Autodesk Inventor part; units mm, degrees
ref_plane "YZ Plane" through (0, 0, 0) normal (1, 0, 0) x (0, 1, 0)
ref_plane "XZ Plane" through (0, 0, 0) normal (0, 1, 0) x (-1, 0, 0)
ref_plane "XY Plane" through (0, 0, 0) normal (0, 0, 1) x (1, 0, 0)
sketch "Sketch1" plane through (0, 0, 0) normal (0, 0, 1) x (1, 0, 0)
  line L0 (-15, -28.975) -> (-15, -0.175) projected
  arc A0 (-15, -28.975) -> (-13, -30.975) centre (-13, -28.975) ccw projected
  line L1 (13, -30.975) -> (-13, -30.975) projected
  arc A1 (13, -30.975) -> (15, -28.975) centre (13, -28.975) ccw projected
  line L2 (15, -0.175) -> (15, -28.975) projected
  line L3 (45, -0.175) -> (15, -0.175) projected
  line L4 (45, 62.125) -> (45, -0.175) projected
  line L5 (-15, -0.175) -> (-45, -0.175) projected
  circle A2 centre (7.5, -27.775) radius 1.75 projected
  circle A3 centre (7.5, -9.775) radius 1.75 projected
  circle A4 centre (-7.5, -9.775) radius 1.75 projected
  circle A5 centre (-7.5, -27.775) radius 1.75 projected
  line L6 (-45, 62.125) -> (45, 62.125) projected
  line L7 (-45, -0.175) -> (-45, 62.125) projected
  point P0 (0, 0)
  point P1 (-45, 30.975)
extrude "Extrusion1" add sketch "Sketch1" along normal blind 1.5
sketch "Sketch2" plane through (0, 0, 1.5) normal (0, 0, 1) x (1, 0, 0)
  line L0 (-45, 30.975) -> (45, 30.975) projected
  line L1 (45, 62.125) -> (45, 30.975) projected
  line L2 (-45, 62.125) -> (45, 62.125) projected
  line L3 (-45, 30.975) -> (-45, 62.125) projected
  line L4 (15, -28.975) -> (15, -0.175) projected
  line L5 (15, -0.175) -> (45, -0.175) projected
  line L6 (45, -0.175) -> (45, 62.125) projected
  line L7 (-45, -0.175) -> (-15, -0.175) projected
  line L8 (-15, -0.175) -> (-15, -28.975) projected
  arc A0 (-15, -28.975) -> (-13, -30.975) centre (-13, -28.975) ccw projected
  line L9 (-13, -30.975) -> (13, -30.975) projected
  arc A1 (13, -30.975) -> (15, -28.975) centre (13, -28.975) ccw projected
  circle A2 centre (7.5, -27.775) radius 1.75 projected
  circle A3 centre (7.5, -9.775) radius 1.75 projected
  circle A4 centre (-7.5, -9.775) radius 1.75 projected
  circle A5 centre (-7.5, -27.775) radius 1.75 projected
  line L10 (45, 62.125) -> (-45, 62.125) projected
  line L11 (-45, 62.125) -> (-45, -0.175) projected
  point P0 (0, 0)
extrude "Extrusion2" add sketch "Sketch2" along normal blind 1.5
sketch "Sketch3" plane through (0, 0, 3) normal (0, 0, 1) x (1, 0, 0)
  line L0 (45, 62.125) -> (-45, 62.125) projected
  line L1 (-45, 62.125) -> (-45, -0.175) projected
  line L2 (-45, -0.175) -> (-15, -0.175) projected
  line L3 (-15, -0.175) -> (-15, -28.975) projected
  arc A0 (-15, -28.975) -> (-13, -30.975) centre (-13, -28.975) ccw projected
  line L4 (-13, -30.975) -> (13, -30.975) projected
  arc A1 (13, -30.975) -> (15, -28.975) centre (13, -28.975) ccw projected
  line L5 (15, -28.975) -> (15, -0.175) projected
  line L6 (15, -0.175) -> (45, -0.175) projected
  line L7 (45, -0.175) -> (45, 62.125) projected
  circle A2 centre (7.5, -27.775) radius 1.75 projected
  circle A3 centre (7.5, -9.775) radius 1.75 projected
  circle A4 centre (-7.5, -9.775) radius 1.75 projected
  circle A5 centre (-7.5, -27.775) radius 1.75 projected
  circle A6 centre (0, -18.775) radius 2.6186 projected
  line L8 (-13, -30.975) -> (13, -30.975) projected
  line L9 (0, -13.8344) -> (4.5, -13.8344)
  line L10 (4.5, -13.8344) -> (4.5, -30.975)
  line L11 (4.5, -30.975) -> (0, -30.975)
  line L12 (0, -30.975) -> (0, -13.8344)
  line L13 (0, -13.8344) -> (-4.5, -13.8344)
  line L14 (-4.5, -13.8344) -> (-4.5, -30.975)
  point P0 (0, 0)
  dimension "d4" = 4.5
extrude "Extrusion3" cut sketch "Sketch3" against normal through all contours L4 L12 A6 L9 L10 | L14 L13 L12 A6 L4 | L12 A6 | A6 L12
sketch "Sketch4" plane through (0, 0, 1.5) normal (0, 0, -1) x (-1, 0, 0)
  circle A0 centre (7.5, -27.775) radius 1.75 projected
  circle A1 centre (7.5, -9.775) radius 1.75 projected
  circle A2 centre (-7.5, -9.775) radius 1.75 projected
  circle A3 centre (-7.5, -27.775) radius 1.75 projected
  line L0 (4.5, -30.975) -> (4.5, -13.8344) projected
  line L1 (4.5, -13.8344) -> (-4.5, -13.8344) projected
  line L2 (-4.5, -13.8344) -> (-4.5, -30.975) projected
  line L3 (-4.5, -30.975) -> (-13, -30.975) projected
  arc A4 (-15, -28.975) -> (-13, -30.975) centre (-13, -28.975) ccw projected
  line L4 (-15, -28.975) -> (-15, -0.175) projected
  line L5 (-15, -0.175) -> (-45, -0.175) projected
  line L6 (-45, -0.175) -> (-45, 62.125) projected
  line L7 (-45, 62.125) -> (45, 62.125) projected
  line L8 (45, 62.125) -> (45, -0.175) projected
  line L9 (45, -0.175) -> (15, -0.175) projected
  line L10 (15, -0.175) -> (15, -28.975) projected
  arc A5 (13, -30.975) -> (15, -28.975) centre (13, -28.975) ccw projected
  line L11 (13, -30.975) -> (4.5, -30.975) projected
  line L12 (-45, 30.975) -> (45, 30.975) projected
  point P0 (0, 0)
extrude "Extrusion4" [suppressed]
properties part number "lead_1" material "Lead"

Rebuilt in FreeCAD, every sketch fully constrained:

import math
import FreeCAD as App
import Part
import Sketcher


def add_polygon(sketch, points):
    """Adds a closed chain of lines whose ends are joined by coincident constraints."""
    first, n = sketch.GeometryCount, len(points)
    for a, b in zip(points, points[1:] + points[:1]):
        sketch.addGeometry(Part.LineSegment(App.Vector(*a, 0), App.Vector(*b, 0)), False)
    for i in range(n):
        sketch.addConstraint(Sketcher.Constraint("Coincident", first + i, 2, first + (i + 1) % n, 1))

doc = App.newDocument("Part")
body = doc.addObject("PartDesign::Body", "Body")

# Sketch on XY plane
sketch1 = body.newObject("Sketcher::SketchObject", "Sketch")
sketch1.AttachmentSupport = (doc.getObject("XY_Plane"), [""])
sketch1.MapMode = "FlatFace"
sketch1.addGeometry([
    Part.LineSegment(App.Vector(-15, -0.2, 0), App.Vector(-15, -29, 0)),  # 0
    Part.ArcOfCircle(Part.Circle(App.Vector(-13, -29, 0), App.Vector(0, 0, 1), 2), math.radians(180), math.radians(270)),  # 1
    Part.LineSegment(App.Vector(-13, -31, 0), App.Vector(13, -31, 0)),  # 2
    Part.ArcOfCircle(Part.Circle(App.Vector(13, -29, 0), App.Vector(0, 0, 1), 2), math.radians(-90), math.radians(0)),  # 3
    Part.LineSegment(App.Vector(15, -29, 0), App.Vector(15, -0.2, 0)),  # 4
    Part.LineSegment(App.Vector(15, -0.2, 0), App.Vector(45, -0.2, 0)),  # 5
    Part.LineSegment(App.Vector(45, -0.2, 0), App.Vector(45, 62.1, 0)),  # 6
    Part.LineSegment(App.Vector(45, 62.1, 0), App.Vector(-45, 62.1, 0)),  # 7
    Part.LineSegment(App.Vector(-45, 62.1, 0), App.Vector(-45, -0.2, 0)),  # 8
    Part.LineSegment(App.Vector(-45, -0.2, 0), App.Vector(-15, -0.2, 0)),  # 9
    Part.Circle(App.Vector(-7.5, -27.8, 0), App.Vector(0, 0, 1), 1.8),  # 10
    Part.Circle(App.Vector(-7.5, -9.8, 0), App.Vector(0, 0, 1), 1.8),  # 11
    Part.Circle(App.Vector(7.5, -27.8, 0), App.Vector(0, 0, 1), 1.8),  # 12
    Part.Circle(App.Vector(7.5, -9.8, 0), App.Vector(0, 0, 1), 1.8),  # 13
], False)
sketch1.addConstraint([
    Sketcher.Constraint("Tangent", 0, 2, 1, 1),
    Sketcher.Constraint("Tangent", 1, 2, 2, 1),
    Sketcher.Constraint("Tangent", 2, 2, 3, 1),
    Sketcher.Constraint("Tangent", 3, 2, 4, 1),
    Sketcher.Constraint("Coincident", 4, 2, 5, 1),
    Sketcher.Constraint("Coincident", 5, 2, 6, 1),
    Sketcher.Constraint("Coincident", 6, 2, 7, 1),
    Sketcher.Constraint("Coincident", 7, 2, 8, 1),
    Sketcher.Constraint("Coincident", 8, 2, 9, 1),
    Sketcher.Constraint("Coincident", 9, 2, 0, 1),
    Sketcher.Constraint("Vertical", 0),
    Sketcher.Constraint("Horizontal", 2),
    Sketcher.Constraint("Vertical", 4),
    Sketcher.Constraint("Horizontal", 5),
    Sketcher.Constraint("Vertical", 6),
    Sketcher.Constraint("Horizontal", 7),
    Sketcher.Constraint("Vertical", 8),
    Sketcher.Constraint("Horizontal", 9),
    Sketcher.Constraint("Equal", 1, 3),
    Sketcher.Constraint("Equal", 10, 11),
    Sketcher.Constraint("Equal", 11, 12),
    Sketcher.Constraint("Equal", 12, 13),
    Sketcher.Constraint("Symmetric", 10, 3, 12, 3, -2),
    Sketcher.Constraint("Symmetric", 11, 3, 13, 3, -2),
    Sketcher.Constraint("Symmetric", 5, 2, 8, 2, -2),
    Sketcher.Constraint("Vertical", 10, 3, 11, 3),
    Sketcher.Constraint("Equal", 5, 9),
    Sketcher.Constraint("Radius", 1, 2.0),
    Sketcher.Constraint("Diameter", 10, 3.5),
    Sketcher.Constraint("DistanceX", 2, 1, 2, 2, 26.0),
    Sketcher.Constraint("DistanceX", 5, 1, 5, 2, 30.0),
    Sketcher.Constraint("DistanceY", 0, 2, 0, 1, 28.8),
    Sketcher.Constraint("DistanceY", 6, 1, 6, 2, 62.3),
    Sketcher.Constraint("DistanceY", 10, 3, 11, 3, 18.0),
    Sketcher.Constraint("DistanceX", 10, 3, 12, 3, 15.0),
    Sketcher.Constraint("DistanceY", 1, 3, 10, 3, 1.2),
    Sketcher.Constraint("DistanceY", 1, 3, -1, 1, 28.975),
])
pad1 = body.newObject("PartDesign::Pad", "Pad")
pad1.Profile = sketch1
pad1.Length = 1.5

# Sketch on XY plane
sketch2 = body.newObject("Sketcher::SketchObject", "Sketch001")
sketch2.AttachmentSupport = (doc.getObject("XY_Plane"), [""])
sketch2.MapMode = "FlatFace"
sketch2.AttachmentOffset = App.Placement(App.Vector(0, 0, 1.5), App.Rotation())
sketch2.addGeometry([
    Part.LineSegment(App.Vector(-45, 62.1, 0), App.Vector(-45, -0.2, 0)),  # 0
    Part.LineSegment(App.Vector(-45, -0.2, 0), App.Vector(-15, -0.2, 0)),  # 1
    Part.LineSegment(App.Vector(-15, -0.2, 0), App.Vector(-15, -29, 0)),  # 2
    Part.ArcOfCircle(Part.Circle(App.Vector(-13, -29, 0), App.Vector(0, 0, 1), 2), math.radians(180), math.radians(270)),  # 3
    Part.LineSegment(App.Vector(-13, -31, 0), App.Vector(13, -31, 0)),  # 4
    Part.ArcOfCircle(Part.Circle(App.Vector(13, -29, 0), App.Vector(0, 0, 1), 2), math.radians(-90), math.radians(0)),  # 5
    Part.LineSegment(App.Vector(15, -29, 0), App.Vector(15, -0.2, 0)),  # 6
    Part.LineSegment(App.Vector(15, -0.2, 0), App.Vector(45, -0.2, 0)),  # 7
    Part.LineSegment(App.Vector(45, -0.2, 0), App.Vector(45, 62.1, 0)),  # 8
    Part.LineSegment(App.Vector(45, 62.1, 0), App.Vector(-45, 62.1, 0)),  # 9
    Part.Circle(App.Vector(7.5, -9.8, 0), App.Vector(0, 0, 1), 1.8),  # 10
    Part.Circle(App.Vector(-7.5, -27.8, 0), App.Vector(0, 0, 1), 1.8),  # 11
    Part.Circle(App.Vector(-7.5, -9.8, 0), App.Vector(0, 0, 1), 1.8),  # 12
    Part.Circle(App.Vector(7.5, -27.8, 0), App.Vector(0, 0, 1), 1.8),  # 13
], False)
sketch2.addConstraint([
    Sketcher.Constraint("Coincident", 0, 2, 1, 1),
    Sketcher.Constraint("Coincident", 1, 2, 2, 1),
    Sketcher.Constraint("Tangent", 2, 2, 3, 1),
    Sketcher.Constraint("Tangent", 3, 2, 4, 1),
    Sketcher.Constraint("Tangent", 4, 2, 5, 1),
    Sketcher.Constraint("Tangent", 5, 2, 6, 1),
    Sketcher.Constraint("Coincident", 6, 2, 7, 1),
    Sketcher.Constraint("Coincident", 7, 2, 8, 1),
    Sketcher.Constraint("Coincident", 8, 2, 9, 1),
    Sketcher.Constraint("Coincident", 9, 2, 0, 1),
    Sketcher.Constraint("Vertical", 0),
    Sketcher.Constraint("Horizontal", 1),
    Sketcher.Constraint("Vertical", 2),
    Sketcher.Constraint("Horizontal", 4),
    Sketcher.Constraint("Vertical", 6),
    Sketcher.Constraint("Horizontal", 7),
    Sketcher.Constraint("Vertical", 8),
    Sketcher.Constraint("Horizontal", 9),
    Sketcher.Constraint("Equal", 3, 5),
    Sketcher.Constraint("Equal", 10, 11),
    Sketcher.Constraint("Equal", 11, 12),
    Sketcher.Constraint("Equal", 12, 13),
    Sketcher.Constraint("Symmetric", 10, 3, 12, 3, -2),
    Sketcher.Constraint("Symmetric", 11, 3, 13, 3, -2),
    Sketcher.Constraint("Symmetric", 1, 2, 6, 2, -2),
    Sketcher.Constraint("Vertical", 11, 3, 12, 3),
    Sketcher.Constraint("Equal", 1, 7),
    Sketcher.Constraint("Radius", 3, 2.0),
    Sketcher.Constraint("Diameter", 10, 3.5),
    Sketcher.Constraint("DistanceX", 1, 1, 1, 2, 30.0),
    Sketcher.Constraint("DistanceX", 4, 1, 4, 2, 26.0),
    Sketcher.Constraint("DistanceY", 0, 2, 0, 1, 62.3),
    Sketcher.Constraint("DistanceY", 2, 2, 2, 1, 28.8),
    Sketcher.Constraint("DistanceX", 11, 3, 10, 3, 15.0),
    Sketcher.Constraint("DistanceY", 11, 3, 10, 3, 18.0),
    Sketcher.Constraint("DistanceY", 5, 3, 10, 3, 19.2),
    Sketcher.Constraint("DistanceY", 3, 3, -1, 1, 28.975),
])
pad2 = body.newObject("PartDesign::Pad", "Pad001")
pad2.Profile = sketch2
pad2.Length = 1.5

# Sketch on XY plane
sketch3 = body.newObject("Sketcher::SketchObject", "Sketch002")
sketch3.AttachmentSupport = (doc.getObject("XY_Plane"), [""])
sketch3.MapMode = "FlatFace"
sketch3.AttachmentOffset = App.Placement(App.Vector(0, 0, 3), App.Rotation())
add_polygon(sketch3, [(4, -31), (4, -14), (-4, -14), (-4, -31)])  # lines 0-3
sketch3.addConstraint([
    Sketcher.Constraint("Vertical", 0),
    Sketcher.Constraint("Horizontal", 1),
    Sketcher.Constraint("Vertical", 2),
    Sketcher.Constraint("Horizontal", 3),
    Sketcher.Constraint("DistanceX", -1, 1, 0, 2, 4.5),
    Sketcher.Constraint("DistanceX", 1, 2, -1, 1, 4.5),
    Sketcher.Constraint("DistanceY", 0, 1, 0, 2, 17.1406),
    Sketcher.Constraint("DistanceY", 2, 2, -1, 1, 30.975),
])
pocket1 = body.newObject("PartDesign::Pocket", "Pocket")
pocket1.Profile = sketch3
pocket1.Type = "ThroughAll"

doc.recompute()
